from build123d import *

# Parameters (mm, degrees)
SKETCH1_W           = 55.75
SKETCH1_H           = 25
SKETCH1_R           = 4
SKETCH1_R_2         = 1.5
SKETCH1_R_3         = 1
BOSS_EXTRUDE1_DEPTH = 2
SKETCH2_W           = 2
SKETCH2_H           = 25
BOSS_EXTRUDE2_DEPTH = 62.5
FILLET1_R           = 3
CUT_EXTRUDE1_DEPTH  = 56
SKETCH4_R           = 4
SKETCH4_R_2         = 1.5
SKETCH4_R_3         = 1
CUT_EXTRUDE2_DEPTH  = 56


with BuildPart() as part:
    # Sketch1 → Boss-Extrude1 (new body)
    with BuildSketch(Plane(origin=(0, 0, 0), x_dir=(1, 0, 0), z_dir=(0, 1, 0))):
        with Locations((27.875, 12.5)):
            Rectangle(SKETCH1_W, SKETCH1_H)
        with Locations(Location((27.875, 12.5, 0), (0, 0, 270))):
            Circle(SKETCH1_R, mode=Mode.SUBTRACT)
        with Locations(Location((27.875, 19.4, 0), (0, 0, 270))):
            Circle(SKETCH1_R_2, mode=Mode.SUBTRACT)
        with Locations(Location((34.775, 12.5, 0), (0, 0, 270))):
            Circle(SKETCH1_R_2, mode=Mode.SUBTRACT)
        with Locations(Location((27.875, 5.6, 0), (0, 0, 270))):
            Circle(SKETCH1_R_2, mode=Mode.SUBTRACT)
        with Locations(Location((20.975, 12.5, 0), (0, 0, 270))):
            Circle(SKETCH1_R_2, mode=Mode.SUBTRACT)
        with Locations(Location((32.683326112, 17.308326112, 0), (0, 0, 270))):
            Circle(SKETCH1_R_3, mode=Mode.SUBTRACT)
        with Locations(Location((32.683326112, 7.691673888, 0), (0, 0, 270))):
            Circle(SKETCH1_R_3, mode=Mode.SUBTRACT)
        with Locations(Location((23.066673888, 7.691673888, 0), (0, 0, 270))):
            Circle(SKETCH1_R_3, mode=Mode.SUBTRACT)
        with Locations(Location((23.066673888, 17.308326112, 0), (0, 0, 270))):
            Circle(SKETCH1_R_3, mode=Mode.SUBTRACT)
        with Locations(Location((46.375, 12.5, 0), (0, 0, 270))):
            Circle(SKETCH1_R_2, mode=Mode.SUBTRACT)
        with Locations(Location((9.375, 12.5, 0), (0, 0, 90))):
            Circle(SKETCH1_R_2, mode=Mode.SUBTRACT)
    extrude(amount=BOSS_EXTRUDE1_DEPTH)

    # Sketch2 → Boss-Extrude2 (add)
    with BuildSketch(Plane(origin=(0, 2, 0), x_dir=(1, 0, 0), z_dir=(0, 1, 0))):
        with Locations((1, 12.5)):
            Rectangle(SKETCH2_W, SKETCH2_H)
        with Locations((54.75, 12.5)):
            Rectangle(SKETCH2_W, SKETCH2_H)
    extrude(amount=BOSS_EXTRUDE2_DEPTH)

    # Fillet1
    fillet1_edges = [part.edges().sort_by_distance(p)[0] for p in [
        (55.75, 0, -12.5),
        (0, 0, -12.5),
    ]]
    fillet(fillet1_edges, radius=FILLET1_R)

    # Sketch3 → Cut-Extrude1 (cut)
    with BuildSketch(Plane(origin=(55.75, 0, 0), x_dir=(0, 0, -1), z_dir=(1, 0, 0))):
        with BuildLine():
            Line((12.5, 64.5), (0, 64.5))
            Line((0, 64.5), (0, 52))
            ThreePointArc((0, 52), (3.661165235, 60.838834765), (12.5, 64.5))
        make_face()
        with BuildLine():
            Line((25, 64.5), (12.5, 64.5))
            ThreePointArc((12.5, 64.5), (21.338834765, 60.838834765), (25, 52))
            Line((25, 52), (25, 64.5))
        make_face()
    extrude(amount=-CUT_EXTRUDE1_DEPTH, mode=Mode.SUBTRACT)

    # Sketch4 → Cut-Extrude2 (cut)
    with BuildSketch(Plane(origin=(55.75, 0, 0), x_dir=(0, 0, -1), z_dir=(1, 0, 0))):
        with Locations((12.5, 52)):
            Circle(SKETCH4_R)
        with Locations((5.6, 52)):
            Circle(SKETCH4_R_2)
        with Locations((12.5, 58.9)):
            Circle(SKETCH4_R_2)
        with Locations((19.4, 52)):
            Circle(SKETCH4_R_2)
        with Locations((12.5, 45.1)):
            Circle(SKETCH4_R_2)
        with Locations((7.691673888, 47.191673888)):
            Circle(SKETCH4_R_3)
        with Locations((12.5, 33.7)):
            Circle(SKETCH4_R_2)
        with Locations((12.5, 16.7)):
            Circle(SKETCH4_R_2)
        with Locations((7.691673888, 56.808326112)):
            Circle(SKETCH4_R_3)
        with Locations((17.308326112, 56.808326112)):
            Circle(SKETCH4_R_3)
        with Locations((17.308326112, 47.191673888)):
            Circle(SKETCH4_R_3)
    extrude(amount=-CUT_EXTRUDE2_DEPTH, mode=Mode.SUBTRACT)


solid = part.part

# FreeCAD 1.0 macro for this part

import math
import FreeCAD as App
import Part
import Sketcher
from FreeCAD import Vector


def edges_at(feature, points):
    """Names of the edges that pass closest to the given points."""
    edges = feature.Shape.Edges
    near = lambda p: min(range(len(edges)), key=lambda i: edges[i].distToShape(Part.Vertex(*p))[0])
    return sorted({f"Edge{near(p) + 1}" for p in points})

doc = App.newDocument("Part")
body = doc.addObject("PartDesign::Body", "Body")

sketch1 = doc.addObject("Sketcher::SketchObject", "Sketch")
body.addObject(sketch1)
sketch1.AttachmentSupport = (doc.XZ_Plane, [""])
sketch1.MapMode = "FlatFace"
sketch1.addGeometry([
    Part.LineSegment(Vector(0, -25, 0), Vector(0, 0, 0)),
    Part.LineSegment(Vector(0, 0, 0), Vector(55.75, 0, 0)),
    Part.LineSegment(Vector(55.75, 0, 0), Vector(55.75, -25, 0)),
    Part.LineSegment(Vector(55.75, -25, 0), Vector(0, -25, 0)),
    Part.Circle(Vector(23.066674, -7.691674, 0), Vector(0, 0, 1), 1),
    Part.Circle(Vector(27.875, -5.6, 0), Vector(0, 0, 1), 1.5),
    Part.Circle(Vector(32.683326, -7.691674, 0), Vector(0, 0, 1), 1),
    Part.Circle(Vector(9.375, -12.5, 0), Vector(0, 0, 1), 1.5),
    Part.Circle(Vector(20.975, -12.5, 0), Vector(0, 0, 1), 1.5),
    Part.Circle(Vector(23.066674, -17.308326, 0), Vector(0, 0, 1), 1),
    Part.Circle(Vector(27.875, -12.5, 0), Vector(0, 0, 1), 4),
    Part.Circle(Vector(34.775, -12.5, 0), Vector(0, 0, 1), 1.5),
    Part.Circle(Vector(46.375, -12.5, 0), Vector(0, 0, 1), 1.5),
    Part.Circle(Vector(32.683326, -17.308326, 0), Vector(0, 0, 1), 1),
    Part.Circle(Vector(27.875, -19.4, 0), Vector(0, 0, 1), 1.5),
], False)
sketch1.addConstraint([
    Sketcher.Constraint("Coincident", 0, 2, 1, 1),
    Sketcher.Constraint("Coincident", 1, 2, 2, 1),
    Sketcher.Constraint("Coincident", 2, 2, 3, 1),
    Sketcher.Constraint("Coincident", 3, 2, 0, 1),
    Sketcher.Constraint("Vertical", 0),
    Sketcher.Constraint("Horizontal", 1),
    Sketcher.Constraint("Vertical", 2),
    Sketcher.Constraint("Horizontal", 3),
    Sketcher.Constraint("Coincident", 0, 2, -1, 1),
    Sketcher.Constraint("Equal", 4, 6),
    Sketcher.Constraint("Equal", 5, 7),
    Sketcher.Constraint("Equal", 7, 8),
    Sketcher.Constraint("Equal", 6, 9),
    Sketcher.Constraint("Equal", 8, 11),
    Sketcher.Constraint("Equal", 11, 12),
    Sketcher.Constraint("Equal", 9, 13),
    Sketcher.Constraint("Equal", 12, 14),
    Sketcher.Constraint("Horizontal", 4, 3, 6, 3),
    Sketcher.Constraint("Horizontal", 7, 3, 8, 3),
    Sketcher.Constraint("Horizontal", 8, 3, 10, 3),
    Sketcher.Constraint("Horizontal", 10, 3, 11, 3),
    Sketcher.Constraint("Horizontal", 11, 3, 12, 3),
    Sketcher.Constraint("Horizontal", 9, 3, 13, 3),
    Sketcher.Constraint("Vertical", 4, 3, 9, 3),
    Sketcher.Constraint("Vertical", 5, 3, 10, 3),
    Sketcher.Constraint("Vertical", 6, 3, 13, 3),
    Sketcher.Constraint("Vertical", 10, 3, 14, 3),
    Sketcher.Constraint("Diameter", 4, 2.0),
    Sketcher.Constraint("Diameter", 5, 3.0),
    Sketcher.Constraint("Diameter", 10, 8.0),
    Sketcher.Constraint("DistanceY", 0, 1, 0, 2, 25.0),
    Sketcher.Constraint("DistanceX", 1, 1, 1, 2, 55.75),
    Sketcher.Constraint("DistanceY", 5, 3, -1, 1, 5.6),
    Sketcher.Constraint("DistanceY", 7, 3, -1, 1, 12.5),
    Sketcher.Constraint("DistanceY", 14, 3, -1, 1, 19.4),
    Sketcher.Constraint("DistanceX", 7, 3, 5, 3, 18.5),
    Sketcher.Constraint("DistanceX", 8, 3, 5, 3, 6.9),
    Sketcher.Constraint("DistanceX", 10, 3, 11, 3, 6.9),
    Sketcher.Constraint("DistanceX", 11, 3, 12, 3, 11.6),
    Sketcher.Constraint("DistanceX", -1, 1, 5, 3, 27.875),
    Sketcher.Constraint("DistanceX", -1, 1, 4, 3, 23.066674),
    Sketcher.Constraint("DistanceY", 4, 3, -1, 1, 7.691674),
    Sketcher.Constraint("DistanceX", -1, 1, 6, 3, 32.683326),
    Sketcher.Constraint("DistanceY", 9, 3, -1, 1, 17.308326),
])
pad1 = doc.addObject("PartDesign::Pad", "Pad")
body.addObject(pad1)
pad1.Profile = sketch1
pad1.Length = 2
pad1.Reversed = True

sketch2 = doc.addObject("Sketcher::SketchObject", "Sketch001")
body.addObject(sketch2)
sketch2.AttachmentSupport = (doc.XZ_Plane, [""])
sketch2.MapMode = "FlatFace"
sketch2.AttachmentOffset = App.Placement(Vector(0, 0, -2), App.Rotation())
sketch2.addGeometry([
    Part.LineSegment(Vector(0, -25, 0), Vector(0, 0, 0)),
    Part.LineSegment(Vector(0, 0, 0), Vector(2, 0, 0)),
    Part.LineSegment(Vector(2, 0, 0), Vector(2, -25, 0)),
    Part.LineSegment(Vector(2, -25, 0), Vector(0, -25, 0)),
    Part.LineSegment(Vector(53.75, -25, 0), Vector(53.75, 0, 0)),
    Part.LineSegment(Vector(53.75, 0, 0), Vector(55.75, 0, 0)),
    Part.LineSegment(Vector(55.75, 0, 0), Vector(55.75, -25, 0)),
    Part.LineSegment(Vector(55.75, -25, 0), Vector(53.75, -25, 0)),
], False)
sketch2.addConstraint([
    Sketcher.Constraint("Coincident", 0, 2, 1, 1),
    Sketcher.Constraint("Coincident", 1, 2, 2, 1),
    Sketcher.Constraint("Coincident", 2, 2, 3, 1),
    Sketcher.Constraint("Coincident", 3, 2, 0, 1),
    Sketcher.Constraint("Coincident", 4, 2, 5, 1),
    Sketcher.Constraint("Coincident", 5, 2, 6, 1),
    Sketcher.Constraint("Coincident", 6, 2, 7, 1),
    Sketcher.Constraint("Coincident", 7, 2, 4, 1),
    Sketcher.Constraint("Vertical", 0),
    Sketcher.Constraint("Horizontal", 1),
    Sketcher.Constraint("Vertical", 2),
    Sketcher.Constraint("Horizontal", 3),
    Sketcher.Constraint("Vertical", 4),
    Sketcher.Constraint("Horizontal", 5),
    Sketcher.Constraint("Vertical", 6),
    Sketcher.Constraint("Horizontal", 7),
    Sketcher.Constraint("Coincident", 0, 2, -1, 1),
    Sketcher.Constraint("PointOnObject", 4, 2, -1),
    Sketcher.Constraint("Horizontal", 3, 2, 6, 2),
    Sketcher.Constraint("Equal", 3, 5),
    Sketcher.Constraint("DistanceX", 1, 1, 1, 2, 2.0),
    Sketcher.Constraint("DistanceY", 0, 1, 0, 2, 25.0),
    Sketcher.Constraint("DistanceX", -1, 1, 4, 2, 53.75),
])
pad2 = doc.addObject("PartDesign::Pad", "Pad001")
body.addObject(pad2)
pad2.Profile = sketch2
pad2.Length = 62.5
pad2.Reversed = True
doc.recompute()

fillet = doc.addObject("PartDesign::Fillet", "Fillet")
body.addObject(fillet)
fillet.Base = (pad2, edges_at(pad2, [(55.75, 0, -12.5), (0, 0, -12.5)]))
fillet.Radius = 3

sketch3 = doc.addObject("Sketcher::SketchObject", "Sketch002")
body.addObject(sketch3)
sketch3.AttachmentSupport = (doc.YZ_Plane, [""])
sketch3.MapMode = "FlatFace"
sketch3.AttachmentOffset = App.Placement(Vector(0, 0, 55.75), App.Rotation())
sketch3.addGeometry([
    Part.LineSegment(Vector(64.5, -12.5, 0), Vector(64.5, 0, 0)),
    Part.LineSegment(Vector(64.5, 0, 0), Vector(52, 0, 0)),
    Part.ArcOfCircle(Part.Circle(Vector(52, -12.5, 0), Vector(0, 0, 1), 12.5), math.radians(0), math.radians(90)),
    Part.LineSegment(Vector(64.5, -25, 0), Vector(64.5, -12.5, 0)),
    Part.ArcOfCircle(Part.Circle(Vector(52, -12.5, 0), Vector(0, 0, 1), 12.5), math.radians(-90), math.radians(0)),
    Part.LineSegment(Vector(52, -25, 0), Vector(64.5, -25, 0)),
], False)
sketch3.addConstraint([
    Sketcher.Constraint("Coincident", 0, 2, 1, 1),
    Sketcher.Constraint("Tangent", 1, 2, 2, 2),
    Sketcher.Constraint("Tangent", 2, 1, 0, 1),
    Sketcher.Constraint("Tangent", 3, 2, 4, 2),
    Sketcher.Constraint("Tangent", 4, 1, 5, 1),
    Sketcher.Constraint("Coincident", 5, 2, 3, 1),
    Sketcher.Constraint("Vertical", 0),
    Sketcher.Constraint("Horizontal", 1),
    Sketcher.Constraint("Vertical", 3),
    Sketcher.Constraint("Horizontal", 5),
    Sketcher.Constraint("Coincident", 4, 3, 2, 3),
    Sketcher.Constraint("Equal", 2, 4),
    Sketcher.Constraint("PointOnObject", 0, 2, -1),
    Sketcher.Constraint("Radius", 2, 12.5),
    Sketcher.Constraint("DistanceX", -1, 1, 2, 3, 52.0),
])
pocket1 = doc.addObject("PartDesign::Pocket", "Pocket")
body.addObject(pocket1)
pocket1.Profile = sketch3
pocket1.Length = 56

sketch4 = doc.addObject("Sketcher::SketchObject", "Sketch003")
body.addObject(sketch4)
sketch4.AttachmentSupport = (doc.YZ_Plane, [""])
sketch4.MapMode = "FlatFace"
sketch4.AttachmentOffset = App.Placement(Vector(0, 0, 55.75), App.Rotation())
sketch4.addGeometry([
    Part.Circle(Vector(52, -12.5, 0), Vector(0, 0, 1), 4),
    Part.Circle(Vector(52, -5.6, 0), Vector(0, 0, 1), 1.5),
    Part.Circle(Vector(58.9, -12.5, 0), Vector(0, 0, 1), 1.5),
    Part.Circle(Vector(52, -19.4, 0), Vector(0, 0, 1), 1.5),
    Part.Circle(Vector(45.1, -12.5, 0), Vector(0, 0, 1), 1.5),
    Part.Circle(Vector(47.191674, -7.691674, 0), Vector(0, 0, 1), 1),
    Part.Circle(Vector(33.7, -12.5, 0), Vector(0, 0, 1), 1.5),
    Part.Circle(Vector(16.7, -12.5, 0), Vector(0, 0, 1), 1.5),
    Part.Circle(Vector(56.808326, -7.691674, 0), Vector(0, 0, 1), 1),
    Part.Circle(Vector(56.808326, -17.308326, 0), Vector(0, 0, 1), 1),
    Part.Circle(Vector(47.191674, -17.308326, 0), Vector(0, 0, 1), 1),
], False)
sketch4.addConstraint([
    Sketcher.Constraint("Equal", 1, 2),
    Sketcher.Constraint("Equal", 2, 3),
    Sketcher.Constraint("Equal", 3, 4),
    Sketcher.Constraint("Equal", 4, 6),
    Sketcher.Constraint("Equal", 6, 7),
    Sketcher.Constraint("Equal", 5, 8),
    Sketcher.Constraint("Equal", 8, 9),
    Sketcher.Constraint("Equal", 9, 10),
    Sketcher.Constraint("Horizontal", 0, 3, 2, 3),
    Sketcher.Constraint("Horizontal", 2, 3, 4, 3),
    Sketcher.Constraint("Horizontal", 4, 3, 6, 3),
    Sketcher.Constraint("Horizontal", 6, 3, 7, 3),
    Sketcher.Constraint("Horizontal", 5, 3, 8, 3),
    Sketcher.Constraint("Horizontal", 9, 3, 10, 3),
    Sketcher.Constraint("Vertical", 0, 3, 1, 3),
    Sketcher.Constraint("Vertical", 1, 3, 3, 3),
    Sketcher.Constraint("Vertical", 8, 3, 9, 3),
    Sketcher.Constraint("Vertical", 5, 3, 10, 3),
    Sketcher.Constraint("Diameter", 0, 8.0),
    Sketcher.Constraint("Diameter", 1, 3.0),
    Sketcher.Constraint("Diameter", 5, 2.0),
    Sketcher.Constraint("DistanceX", -1, 1, 0, 3, 52.0),
    Sketcher.Constraint("DistanceX", 7, 3, 6, 3, 17.0),
    Sketcher.Constraint("DistanceY", 0, 3, -1, 1, 12.5),
    Sketcher.Constraint("DistanceY", 1, 3, -1, 1, 5.6),
    Sketcher.Constraint("DistanceX", -1, 1, 2, 3, 58.9),
    Sketcher.Constraint("DistanceY", 3, 3, -1, 1, 19.4),
    Sketcher.Constraint("DistanceX", -1, 1, 4, 3, 45.1),
    Sketcher.Constraint("DistanceX", -1, 1, 6, 3, 33.7),
    Sketcher.Constraint("DistanceX", -1, 1, 5, 3, 47.191674),
    Sketcher.Constraint("DistanceY", 5, 3, -1, 1, 7.691674),
    Sketcher.Constraint("DistanceX", -1, 1, 8, 3, 56.808326),
    Sketcher.Constraint("DistanceY", 9, 3, -1, 1, 17.308326),
])
pocket2 = doc.addObject("PartDesign::Pocket", "Pocket001")
body.addObject(pocket2)
pocket2.Profile = sketch4
pocket2.Length = 56

doc.recompute()
